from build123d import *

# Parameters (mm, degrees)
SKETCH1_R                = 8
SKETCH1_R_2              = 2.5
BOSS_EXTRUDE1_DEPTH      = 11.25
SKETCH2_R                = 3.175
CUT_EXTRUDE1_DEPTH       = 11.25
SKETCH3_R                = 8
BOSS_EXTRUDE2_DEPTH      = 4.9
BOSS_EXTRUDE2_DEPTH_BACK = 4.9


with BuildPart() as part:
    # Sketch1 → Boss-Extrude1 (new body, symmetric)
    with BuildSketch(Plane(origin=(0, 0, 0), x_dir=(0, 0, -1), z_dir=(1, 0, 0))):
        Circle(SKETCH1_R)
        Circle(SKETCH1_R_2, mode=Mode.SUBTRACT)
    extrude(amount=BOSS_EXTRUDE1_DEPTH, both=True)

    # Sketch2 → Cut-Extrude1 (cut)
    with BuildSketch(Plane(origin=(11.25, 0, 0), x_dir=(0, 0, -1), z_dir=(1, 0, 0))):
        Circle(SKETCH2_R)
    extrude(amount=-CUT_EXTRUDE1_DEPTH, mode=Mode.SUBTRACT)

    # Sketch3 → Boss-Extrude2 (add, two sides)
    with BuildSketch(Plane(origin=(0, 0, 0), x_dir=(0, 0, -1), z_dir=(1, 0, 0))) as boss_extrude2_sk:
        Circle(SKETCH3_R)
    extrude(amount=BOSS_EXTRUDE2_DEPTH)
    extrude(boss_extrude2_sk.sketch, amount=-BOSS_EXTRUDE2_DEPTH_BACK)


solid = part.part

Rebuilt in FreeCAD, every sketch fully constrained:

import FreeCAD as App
import Part
import Sketcher
from FreeCAD import Vector
Q = App.Units.Quantity

doc = App.newDocument("Part")
params = doc.addObject("Spreadsheet::Sheet", "Params")
for row, (alias, value) in enumerate([
    ("sketch1_diameter", "16 mm"),
    ("sketch1_diameter2", "5 mm"),
    ("pad1_length", "22.5 mm"),
    ("sketch2_diameter", "6.35 mm"),
    ("pocket1_length", "11.25 mm"),
    ("sketch3_diameter", "16 mm"),
    ("pad2_length", "4.9 mm"),
    ("pad2_length2", "4.9 mm"),
], start=1):
    params.set(f"A{row}", alias)
    params.set(f"B{row}", "=" + value)
    params.setAlias(f"B{row}", alias)

body = doc.addObject("PartDesign::Body", "Body")

# Sketch on YZ plane
sketch1 = doc.addObject("Sketcher::SketchObject", "Sketch")
body.addObject(sketch1)
sketch1.AttachmentSupport = (doc.YZ_Plane, [""])
sketch1.MapMode = "FlatFace"
sketch1.addGeometry([
    Part.Circle(Vector(0, 0, 0), Vector(0, 0, 1), 8),
    Part.Circle(Vector(0, 0, 0), Vector(0, 0, 1), 2.5),
], False)
sketch1.addConstraint([
    Sketcher.Constraint("Coincident", 0, 3, -1, 1),
    Sketcher.Constraint("Coincident", 1, 3, -1, 1),
    Sketcher.Constraint("Diameter", 0, Q("16 mm")),
    Sketcher.Constraint("Diameter", 1, Q("5 mm")),
])
sketch1.setExpression("Constraints[2]", "Params.sketch1_diameter")
sketch1.setExpression("Constraints[3]", "Params.sketch1_diameter2")
pad1 = doc.addObject("PartDesign::Pad", "Pad")
body.addObject(pad1)
pad1.Profile = sketch1
pad1.setExpression("Length", "Params.pad1_length")
pad1.Midplane = True

# Sketch on YZ plane
sketch2 = doc.addObject("Sketcher::SketchObject", "Sketch001")
body.addObject(sketch2)
sketch2.AttachmentSupport = (doc.YZ_Plane, [""])
sketch2.MapMode = "FlatFace"
sketch2.AttachmentOffset = App.Placement(Vector(0, 0, 11.25), App.Rotation())
sketch2.addGeometry(Part.Circle(Vector(0, 0, 0), Vector(0, 0, 1), 3.2), False)
sketch2.addConstraint([
    Sketcher.Constraint("Coincident", 0, 3, -1, 1),
    Sketcher.Constraint("Diameter", 0, Q("6.35 mm")),
])
sketch2.setExpression("Constraints[1]", "Params.sketch2_diameter")
pocket1 = doc.addObject("PartDesign::Pocket", "Pocket")
body.addObject(pocket1)
pocket1.Profile = sketch2
pocket1.setExpression("Length", "Params.pocket1_length")

# Sketch on YZ plane
sketch3 = doc.addObject("Sketcher::SketchObject", "Sketch002")
body.addObject(sketch3)
sketch3.AttachmentSupport = (doc.YZ_Plane, [""])
sketch3.MapMode = "FlatFace"
sketch3.addGeometry(Part.Circle(Vector(0, 0, 0), Vector(0, 0, 1), 8), False)
sketch3.addConstraint([
    Sketcher.Constraint("Coincident", 0, 3, -1, 1),
    Sketcher.Constraint("Diameter", 0, Q("16 mm")),
])
sketch3.setExpression("Constraints[1]", "Params.sketch3_diameter")
pad2 = doc.addObject("PartDesign::Pad", "Pad001")
body.addObject(pad2)
pad2.Profile = sketch3
pad2.Type = "TwoLengths"
pad2.setExpression("Length", "Params.pad2_length")
pad2.setExpression("Length2", "Params.pad2_length2")

doc.recompute()
